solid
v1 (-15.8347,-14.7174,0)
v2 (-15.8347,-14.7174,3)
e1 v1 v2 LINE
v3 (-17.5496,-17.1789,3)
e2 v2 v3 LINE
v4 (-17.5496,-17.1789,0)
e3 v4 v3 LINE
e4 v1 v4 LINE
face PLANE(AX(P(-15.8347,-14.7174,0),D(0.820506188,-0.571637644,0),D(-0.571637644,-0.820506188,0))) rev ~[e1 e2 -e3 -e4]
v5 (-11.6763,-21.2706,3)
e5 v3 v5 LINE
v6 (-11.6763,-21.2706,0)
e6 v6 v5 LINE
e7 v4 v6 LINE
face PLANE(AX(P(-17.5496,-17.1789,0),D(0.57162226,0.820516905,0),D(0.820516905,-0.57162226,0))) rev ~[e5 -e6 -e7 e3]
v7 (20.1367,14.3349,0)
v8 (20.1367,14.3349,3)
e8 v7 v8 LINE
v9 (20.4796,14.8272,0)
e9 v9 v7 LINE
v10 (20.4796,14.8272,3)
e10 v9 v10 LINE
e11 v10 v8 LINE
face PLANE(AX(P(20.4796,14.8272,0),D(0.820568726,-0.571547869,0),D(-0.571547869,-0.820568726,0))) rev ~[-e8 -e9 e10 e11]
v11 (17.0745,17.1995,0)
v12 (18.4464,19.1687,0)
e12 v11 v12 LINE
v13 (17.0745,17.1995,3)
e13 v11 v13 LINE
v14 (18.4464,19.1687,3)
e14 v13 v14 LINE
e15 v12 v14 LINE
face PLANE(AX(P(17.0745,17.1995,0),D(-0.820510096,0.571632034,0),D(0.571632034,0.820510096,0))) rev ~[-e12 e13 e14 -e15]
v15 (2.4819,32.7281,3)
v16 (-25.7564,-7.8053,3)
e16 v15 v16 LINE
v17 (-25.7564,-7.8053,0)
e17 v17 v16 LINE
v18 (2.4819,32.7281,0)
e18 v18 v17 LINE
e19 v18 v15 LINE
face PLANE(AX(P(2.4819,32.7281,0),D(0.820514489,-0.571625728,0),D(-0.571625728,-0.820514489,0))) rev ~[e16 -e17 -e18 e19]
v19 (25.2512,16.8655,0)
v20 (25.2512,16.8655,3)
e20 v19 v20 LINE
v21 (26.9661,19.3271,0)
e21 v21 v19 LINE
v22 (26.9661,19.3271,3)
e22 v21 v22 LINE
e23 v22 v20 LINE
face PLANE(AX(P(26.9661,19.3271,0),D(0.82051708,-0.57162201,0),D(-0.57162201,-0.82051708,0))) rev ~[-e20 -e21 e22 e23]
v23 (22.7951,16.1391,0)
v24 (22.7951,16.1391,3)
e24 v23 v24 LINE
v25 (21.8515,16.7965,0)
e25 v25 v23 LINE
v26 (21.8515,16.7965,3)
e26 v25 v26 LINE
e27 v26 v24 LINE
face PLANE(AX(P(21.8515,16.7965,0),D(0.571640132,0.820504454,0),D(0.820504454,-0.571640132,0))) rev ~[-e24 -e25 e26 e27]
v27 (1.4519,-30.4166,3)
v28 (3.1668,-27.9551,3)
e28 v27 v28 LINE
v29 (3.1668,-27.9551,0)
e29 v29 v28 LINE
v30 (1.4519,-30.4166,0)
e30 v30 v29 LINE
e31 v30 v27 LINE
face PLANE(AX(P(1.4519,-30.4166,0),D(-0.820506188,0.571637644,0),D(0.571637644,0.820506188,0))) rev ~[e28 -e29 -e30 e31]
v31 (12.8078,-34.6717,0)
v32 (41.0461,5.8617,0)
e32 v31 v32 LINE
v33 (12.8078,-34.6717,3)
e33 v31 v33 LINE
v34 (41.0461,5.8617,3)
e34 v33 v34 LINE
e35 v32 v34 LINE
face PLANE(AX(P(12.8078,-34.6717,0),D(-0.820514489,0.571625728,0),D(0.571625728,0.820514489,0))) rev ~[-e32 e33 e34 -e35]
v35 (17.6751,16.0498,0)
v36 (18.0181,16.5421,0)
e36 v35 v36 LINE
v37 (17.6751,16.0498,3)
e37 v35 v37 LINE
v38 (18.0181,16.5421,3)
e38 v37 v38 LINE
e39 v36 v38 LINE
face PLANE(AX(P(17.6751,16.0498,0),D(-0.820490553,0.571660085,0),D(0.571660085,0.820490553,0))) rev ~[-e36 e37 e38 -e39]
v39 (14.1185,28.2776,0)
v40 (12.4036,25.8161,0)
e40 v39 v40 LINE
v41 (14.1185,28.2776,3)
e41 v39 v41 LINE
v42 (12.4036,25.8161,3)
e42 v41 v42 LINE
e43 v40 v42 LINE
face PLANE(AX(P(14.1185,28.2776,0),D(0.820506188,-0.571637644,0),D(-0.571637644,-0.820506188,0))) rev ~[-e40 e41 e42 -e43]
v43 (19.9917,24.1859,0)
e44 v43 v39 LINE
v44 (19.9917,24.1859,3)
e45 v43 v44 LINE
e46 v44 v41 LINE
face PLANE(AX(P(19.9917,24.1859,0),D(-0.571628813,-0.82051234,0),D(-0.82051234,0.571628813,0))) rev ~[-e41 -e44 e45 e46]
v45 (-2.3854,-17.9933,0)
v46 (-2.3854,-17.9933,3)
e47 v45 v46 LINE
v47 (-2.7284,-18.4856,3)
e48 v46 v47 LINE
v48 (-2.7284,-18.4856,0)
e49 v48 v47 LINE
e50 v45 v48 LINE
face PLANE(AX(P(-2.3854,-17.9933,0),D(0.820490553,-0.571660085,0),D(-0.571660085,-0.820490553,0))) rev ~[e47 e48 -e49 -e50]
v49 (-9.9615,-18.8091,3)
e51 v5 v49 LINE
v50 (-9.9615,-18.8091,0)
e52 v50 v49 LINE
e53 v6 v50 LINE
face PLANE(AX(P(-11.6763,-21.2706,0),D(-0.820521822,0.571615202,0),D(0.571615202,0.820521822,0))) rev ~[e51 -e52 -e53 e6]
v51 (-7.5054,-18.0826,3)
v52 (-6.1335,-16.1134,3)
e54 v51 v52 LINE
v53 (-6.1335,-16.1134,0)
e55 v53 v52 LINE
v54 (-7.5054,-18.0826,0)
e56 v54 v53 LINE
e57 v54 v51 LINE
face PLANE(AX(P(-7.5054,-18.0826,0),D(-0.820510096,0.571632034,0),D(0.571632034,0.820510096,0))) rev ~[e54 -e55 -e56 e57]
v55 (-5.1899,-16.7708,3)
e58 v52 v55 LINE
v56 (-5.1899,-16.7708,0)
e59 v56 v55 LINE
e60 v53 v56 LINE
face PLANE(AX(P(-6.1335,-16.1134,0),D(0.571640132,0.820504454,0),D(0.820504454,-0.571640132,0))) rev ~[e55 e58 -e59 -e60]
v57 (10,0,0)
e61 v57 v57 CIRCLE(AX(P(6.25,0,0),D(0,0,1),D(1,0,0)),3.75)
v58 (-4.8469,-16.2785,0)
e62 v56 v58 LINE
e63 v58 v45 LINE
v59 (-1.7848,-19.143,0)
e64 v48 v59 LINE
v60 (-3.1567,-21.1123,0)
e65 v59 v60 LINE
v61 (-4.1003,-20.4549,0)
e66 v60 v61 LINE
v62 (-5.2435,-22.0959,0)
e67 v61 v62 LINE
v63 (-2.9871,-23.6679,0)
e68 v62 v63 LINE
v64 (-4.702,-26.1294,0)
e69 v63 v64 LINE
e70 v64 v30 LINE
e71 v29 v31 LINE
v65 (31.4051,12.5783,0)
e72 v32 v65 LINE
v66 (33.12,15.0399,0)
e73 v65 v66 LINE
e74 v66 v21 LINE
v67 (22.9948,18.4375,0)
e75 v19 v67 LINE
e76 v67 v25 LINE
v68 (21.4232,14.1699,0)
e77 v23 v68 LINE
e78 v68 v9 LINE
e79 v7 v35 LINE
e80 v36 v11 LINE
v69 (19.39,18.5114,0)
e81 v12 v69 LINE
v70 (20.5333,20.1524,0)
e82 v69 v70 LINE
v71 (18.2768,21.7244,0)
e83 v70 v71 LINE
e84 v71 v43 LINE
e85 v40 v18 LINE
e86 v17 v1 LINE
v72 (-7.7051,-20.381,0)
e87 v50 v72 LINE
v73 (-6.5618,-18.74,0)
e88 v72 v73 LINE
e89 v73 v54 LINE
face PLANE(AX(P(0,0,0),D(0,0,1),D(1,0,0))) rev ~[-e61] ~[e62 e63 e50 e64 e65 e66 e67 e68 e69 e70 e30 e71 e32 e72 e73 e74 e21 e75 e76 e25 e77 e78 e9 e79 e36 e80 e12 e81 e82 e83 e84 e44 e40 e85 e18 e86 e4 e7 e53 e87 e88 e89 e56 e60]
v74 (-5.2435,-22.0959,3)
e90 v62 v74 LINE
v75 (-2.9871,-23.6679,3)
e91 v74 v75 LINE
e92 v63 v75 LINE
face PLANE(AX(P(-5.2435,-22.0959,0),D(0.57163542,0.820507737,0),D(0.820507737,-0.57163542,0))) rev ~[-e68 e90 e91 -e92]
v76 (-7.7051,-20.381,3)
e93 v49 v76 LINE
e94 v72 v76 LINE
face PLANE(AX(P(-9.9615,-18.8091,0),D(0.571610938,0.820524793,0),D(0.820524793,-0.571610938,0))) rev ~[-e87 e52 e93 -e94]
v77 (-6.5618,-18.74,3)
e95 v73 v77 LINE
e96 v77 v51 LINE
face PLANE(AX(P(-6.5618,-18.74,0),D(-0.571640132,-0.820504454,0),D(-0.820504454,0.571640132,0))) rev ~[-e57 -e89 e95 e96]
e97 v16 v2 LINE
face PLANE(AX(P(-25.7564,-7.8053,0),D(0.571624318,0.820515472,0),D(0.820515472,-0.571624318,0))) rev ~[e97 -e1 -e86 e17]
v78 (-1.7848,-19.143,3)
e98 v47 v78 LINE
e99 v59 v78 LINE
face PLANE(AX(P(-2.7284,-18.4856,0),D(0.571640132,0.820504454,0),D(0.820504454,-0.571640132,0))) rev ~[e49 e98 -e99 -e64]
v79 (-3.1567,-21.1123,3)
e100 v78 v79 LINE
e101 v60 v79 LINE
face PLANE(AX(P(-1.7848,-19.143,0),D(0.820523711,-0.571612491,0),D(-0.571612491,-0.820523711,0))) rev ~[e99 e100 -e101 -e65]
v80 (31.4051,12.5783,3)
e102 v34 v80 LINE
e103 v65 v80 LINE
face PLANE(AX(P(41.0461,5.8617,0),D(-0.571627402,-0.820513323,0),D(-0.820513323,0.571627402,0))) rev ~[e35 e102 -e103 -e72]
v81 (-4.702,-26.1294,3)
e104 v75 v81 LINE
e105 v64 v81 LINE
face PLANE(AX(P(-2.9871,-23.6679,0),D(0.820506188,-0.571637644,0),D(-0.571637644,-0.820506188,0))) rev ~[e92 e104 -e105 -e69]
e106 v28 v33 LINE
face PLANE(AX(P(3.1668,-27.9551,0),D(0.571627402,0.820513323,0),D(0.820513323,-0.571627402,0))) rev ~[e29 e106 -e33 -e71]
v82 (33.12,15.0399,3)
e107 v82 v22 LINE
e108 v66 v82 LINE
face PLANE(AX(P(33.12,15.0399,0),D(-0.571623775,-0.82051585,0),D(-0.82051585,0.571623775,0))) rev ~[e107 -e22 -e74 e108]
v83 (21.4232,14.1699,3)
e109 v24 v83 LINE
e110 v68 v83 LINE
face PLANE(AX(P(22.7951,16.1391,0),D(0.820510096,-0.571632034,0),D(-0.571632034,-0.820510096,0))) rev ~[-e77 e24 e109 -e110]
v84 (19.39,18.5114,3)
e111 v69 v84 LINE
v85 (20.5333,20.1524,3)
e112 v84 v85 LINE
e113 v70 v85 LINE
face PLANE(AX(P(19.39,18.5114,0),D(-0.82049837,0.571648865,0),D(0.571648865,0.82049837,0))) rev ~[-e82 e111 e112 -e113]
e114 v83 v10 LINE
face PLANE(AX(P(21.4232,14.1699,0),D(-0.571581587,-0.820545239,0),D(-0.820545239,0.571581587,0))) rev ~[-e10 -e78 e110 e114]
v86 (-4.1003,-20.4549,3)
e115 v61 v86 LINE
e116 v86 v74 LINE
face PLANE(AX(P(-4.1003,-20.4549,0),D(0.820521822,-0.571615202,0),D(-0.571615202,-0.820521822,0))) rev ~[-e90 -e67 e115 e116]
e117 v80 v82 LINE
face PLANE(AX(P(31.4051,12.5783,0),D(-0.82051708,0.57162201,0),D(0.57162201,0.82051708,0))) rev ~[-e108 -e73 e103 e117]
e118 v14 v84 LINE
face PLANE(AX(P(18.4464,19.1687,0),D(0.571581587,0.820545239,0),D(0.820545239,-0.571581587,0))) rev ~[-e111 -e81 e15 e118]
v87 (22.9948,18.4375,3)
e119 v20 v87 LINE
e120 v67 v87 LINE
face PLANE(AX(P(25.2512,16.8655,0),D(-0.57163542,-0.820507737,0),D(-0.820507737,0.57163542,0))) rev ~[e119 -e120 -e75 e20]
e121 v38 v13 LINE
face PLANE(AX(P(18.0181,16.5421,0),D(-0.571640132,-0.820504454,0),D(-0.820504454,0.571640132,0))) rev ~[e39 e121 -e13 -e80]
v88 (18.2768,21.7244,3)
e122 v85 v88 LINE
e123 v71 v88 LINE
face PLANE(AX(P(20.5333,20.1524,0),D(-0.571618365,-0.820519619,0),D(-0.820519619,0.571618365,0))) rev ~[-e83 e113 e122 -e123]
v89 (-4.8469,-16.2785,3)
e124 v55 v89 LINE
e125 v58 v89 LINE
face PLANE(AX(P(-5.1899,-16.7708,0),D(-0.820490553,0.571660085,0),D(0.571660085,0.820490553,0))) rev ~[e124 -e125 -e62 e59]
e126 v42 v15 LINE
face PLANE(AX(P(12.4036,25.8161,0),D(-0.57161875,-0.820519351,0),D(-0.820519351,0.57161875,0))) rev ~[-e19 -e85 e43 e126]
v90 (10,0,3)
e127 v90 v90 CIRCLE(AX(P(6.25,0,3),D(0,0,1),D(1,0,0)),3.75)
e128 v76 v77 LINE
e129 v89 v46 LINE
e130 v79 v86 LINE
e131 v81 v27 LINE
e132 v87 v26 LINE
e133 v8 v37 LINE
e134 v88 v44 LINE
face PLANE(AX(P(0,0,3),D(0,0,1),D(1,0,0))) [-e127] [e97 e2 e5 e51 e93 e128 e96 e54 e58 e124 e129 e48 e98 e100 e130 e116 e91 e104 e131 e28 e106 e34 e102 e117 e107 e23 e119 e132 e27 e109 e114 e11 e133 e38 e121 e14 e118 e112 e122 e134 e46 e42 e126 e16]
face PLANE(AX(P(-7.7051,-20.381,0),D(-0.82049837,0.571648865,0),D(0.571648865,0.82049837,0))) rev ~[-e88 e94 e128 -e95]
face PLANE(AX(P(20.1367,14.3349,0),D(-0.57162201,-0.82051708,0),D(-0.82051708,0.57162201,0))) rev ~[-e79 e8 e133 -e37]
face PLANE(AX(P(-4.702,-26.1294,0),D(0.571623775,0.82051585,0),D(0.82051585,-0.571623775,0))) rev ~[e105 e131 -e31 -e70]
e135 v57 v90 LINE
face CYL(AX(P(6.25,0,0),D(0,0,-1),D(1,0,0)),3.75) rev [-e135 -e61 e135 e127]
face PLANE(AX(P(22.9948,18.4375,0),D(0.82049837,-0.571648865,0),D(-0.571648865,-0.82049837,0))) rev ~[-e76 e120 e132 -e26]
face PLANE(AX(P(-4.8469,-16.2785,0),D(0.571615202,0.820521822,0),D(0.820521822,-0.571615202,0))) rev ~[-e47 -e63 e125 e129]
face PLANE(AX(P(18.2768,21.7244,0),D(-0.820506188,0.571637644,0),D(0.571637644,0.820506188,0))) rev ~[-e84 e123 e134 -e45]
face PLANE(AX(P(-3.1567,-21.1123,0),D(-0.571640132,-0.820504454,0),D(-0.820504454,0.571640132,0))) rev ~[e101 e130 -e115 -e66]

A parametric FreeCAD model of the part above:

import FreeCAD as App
import Part
import Sketcher

V = App.Vector


def add_polygon(sketch, points):
    """Adds a closed chain of lines whose ends are joined by coincident constraints."""
    first, n = sketch.GeometryCount, len(points)
    for a, b in zip(points, points[1:] + points[:1]):
        sketch.addGeometry(Part.LineSegment(App.Vector(*a, 0), App.Vector(*b, 0)), False)
    for i in range(n):
        sketch.addConstraint(Sketcher.Constraint("Coincident", first + i, 2, first + (i + 1) % n, 1))

doc = App.newDocument("Part")
params = doc.addObject("Spreadsheet::Sheet", "Params")
for row, (alias, value) in enumerate([
    ("sketch1_diameter", "7.5 mm"),
    ("sketch1_length", "3 mm"),
    ("sketch1_length2", "3 mm"),
    ("sketch1_length3", "3 mm"),
    ("sketch1_length4", "3 mm"),
    ("pad1_length", "3 mm"),
], start=1):
    params.set(f"A{row}", alias)
    params.set(f"B{row}", "=" + value)
    params.setAlias(f"B{row}", alias)

body = doc.addObject("PartDesign::Body", "Body")

# Sketch on XY plane
sketch1 = body.newObject("Sketcher::SketchObject", "Sketch")
sketch1.AttachmentSupport = (doc.getObject("XY_Plane"), [""])
sketch1.MapMode = "FlatFace"
add_polygon(sketch1, [(-2.9871, -23.6679), (-4.702, -26.1294), (1.4519, -30.4166), (3.1668, -27.9551), (12.8078, -34.6717), (41.0461, 5.8617), (31.4051, 12.5783), (33.12, 15.0399), (26.9661, 19.3271), (25.2512, 16.8655), (22.9948, 18.4375), (21.8515, 16.7965), (22.7951, 16.1391), (21.4232, 14.1699), (20.4796, 14.8272), (20.1367, 14.3349), (17.6751, 16.0498), (18.0181, 16.5421), (17.0745, 17.1995), (18.4464, 19.1687), (19.39, 18.5114), (20.5333, 20.1524), (18.2768, 21.7244), (19.9917, 24.1859), (14.1185, 28.2776), (12.4036, 25.8161), (2.4819, 32.7281), (-25.7564, -7.8053), (-15.8347, -14.7174), (-17.5496, -17.1789), (-11.6763, -21.2706), (-9.9615, -18.8091), (-7.7051, -20.381), (-6.5618, -18.74), (-7.5054, -18.0826), (-6.1335, -16.1134), (-5.1899, -16.7708), (-4.8469, -16.2785), (-2.3854, -17.9933), (-2.7284, -18.4856), (-1.7848, -19.143), (-3.1567, -21.1123), (-4.1003, -20.4549), (-5.2435, -22.0959)])  # lines 0-43
sketch1.addGeometry(Part.Circle(V(6.25, 0, 0), V(0, 0, 1), 3.75), False)  # 44
sketch1.addConstraint(Sketcher.Constraint("PointOnObject", 44, 3, -1))
sketch1.addConstraint(Sketcher.Constraint("Diameter", 44, 7.5))
sketch1.addConstraint(Sketcher.Constraint("Distance", 0, 3.0))
sketch1.addConstraint(Sketcher.Constraint("Distance", 2, 3.0))
sketch1.addConstraint(Sketcher.Constraint("Distance", 6, 3.0))
sketch1.addConstraint(Sketcher.Constraint("Distance", 8, 3.0))
sketch1.addConstraint(Sketcher.Constraint("Distance", 10, 2.0))
sketch1.addConstraint(Sketcher.Constraint("Distance", 15, 3.0))
sketch1.addConstraint(Sketcher.Constraint("Distance", 20, 2.0))
sketch1.addConstraint(Sketcher.Constraint("Distance", 22, 3.0))
sketch1.addConstraint(Sketcher.Constraint("Distance", 24, 3.0))
sketch1.addConstraint(Sketcher.Constraint("Distance", 28, 3.0))
sketch1.addConstraint(Sketcher.Constraint("Distance", 30, 3.0))
sketch1.addConstraint(Sketcher.Constraint("Distance", 32, 2.0))
sketch1.addConstraint(Sketcher.Constraint("Distance", 37, 3.0))
sketch1.addConstraint(Sketcher.Constraint("Distance", 42, 2.0))
sketch1.addConstraint(Sketcher.Constraint("Distance", 1, 7.5))
sketch1.addConstraint(Sketcher.Constraint("Distance", 4, 49.4))
sketch1.addConstraint(Sketcher.Constraint("Distance", 7, 7.5))
sketch1.addConstraint(Sketcher.Constraint("Distance", 12, 2.4))
sketch1.addConstraint(Sketcher.Constraint("Distance", 14, 0.6))
sketch1.addConstraint(Sketcher.Constraint("Distance", 16, 0.6))
sketch1.addConstraint(Sketcher.Constraint("Distance", 18, 2.4))
sketch1.addConstraint(Sketcher.Constraint("Distance", 26, 49.4))
sketch1.addConstraint(Sketcher.Constraint("Distance", 34, 2.4))
sketch1.addConstraint(Sketcher.Constraint("Distance", 36, 0.6))
sketch1.addConstraint(Sketcher.Constraint("Distance", 38, 0.6))
sketch1.addConstraint(Sketcher.Constraint("Distance", 40, 2.4))
sketch1.addConstraint(Sketcher.Constraint("Distance", 3, 11.75))
sketch1.addConstraint(Sketcher.Constraint("Distance", 5, 11.75))
sketch1.addConstraint(Sketcher.Constraint("Distance", 9, 2.75))
sketch1.addConstraint(Sketcher.Constraint("Distance", 11, 1.15))
sketch1.addConstraint(Sketcher.Constraint("Distance", 13, 1.15))
sketch1.addConstraint(Sketcher.Constraint("Distance", 17, 1.15))
sketch1.addConstraint(Sketcher.Constraint("Distance", 19, 1.15))
sketch1.addConstraint(Sketcher.Constraint("Distance", 21, 2.75))
sketch1.addConstraint(Sketcher.Constraint("Distance", 31, 2.75))
sketch1.addConstraint(Sketcher.Constraint("Distance", 33, 1.15))
sketch1.addConstraint(Sketcher.Constraint("Distance", 35, 1.15))
sketch1.addConstraint(Sketcher.Constraint("Distance", 39, 1.15))
sketch1.addConstraint(Sketcher.Constraint("Distance", 41, 1.15))
sketch1.addConstraint(Sketcher.Constraint("Distance", 43, 2.75))
sketch1.addConstraint(Sketcher.Constraint("DistanceX", -1, 1, 44, 3, 6.25))
sketch1.addConstraint(Sketcher.Constraint("DistanceX", -1, 1, 6, 2, 33.12))
sketch1.addConstraint(Sketcher.Constraint("DistanceY", -1, 1, 6, 2, 15.04))
sketch1.addConstraint(Sketcher.Constraint("DistanceY", -1, 1, 12, 2, 14.17))
sketch1.addConstraint(Sketcher.Constraint("DistanceX", -1, 1, 19, 2, 19.39))
sketch1.addConstraint(Sketcher.Constraint("DistanceY", 32, 2, -1, 1, 18.74))
sketch1.addConstraint(Sketcher.Constraint("DistanceX", 35, 2, -1, 1, 5.19))
sketch1.addConstraint(Sketcher.Constraint("DistanceY", 3, 2, 5, 2, 47.25))
sketch1.addConstraint(Sketcher.Constraint("DistanceX", 7, 2, 4, 2, 14.08))
sketch1.addConstraint(Sketcher.Constraint("DistanceX", 11, 2, 5, 2, 8.61))
sketch1.addConstraint(Sketcher.Constraint("DistanceY", 12, 2, 15, 2, 1.88))
sketch1.addConstraint(Sketcher.Constraint("DistanceX", 15, 2, 11, 2, 5.12))
sketch1.addConstraint(Sketcher.Constraint("DistanceY", 37, 2, 34, 2, 1.88))
sketch1.addConstraint(Sketcher.Constraint("DistanceX", 33, 2, 37, 2, 5.12))
sketch1.addConstraint(Sketcher.Constraint("Distance", 23, 7.158))
sketch1.addConstraint(Sketcher.Constraint("Distance", 25, 12.092))
sketch1.addConstraint(Sketcher.Constraint("Distance", 27, 12.092))
sketch1.addConstraint(Sketcher.Constraint("Distance", 29, 7.158))
sketch1.addConstraint(Sketcher.Constraint("DistanceX", 0, 2, -1, 1, 4.702))
sketch1.addConstraint(Sketcher.Constraint("DistanceX", -1, 1, 1, 2, 1.452))
sketch1.addConstraint(Sketcher.Constraint("DistanceY", 2, 2, -1, 1, 27.955))
sketch1.addConstraint(Sketcher.Constraint("DistanceX", -1, 1, 4, 2, 41.046))
sketch1.addConstraint(Sketcher.Constraint("DistanceX", -1, 1, 5, 2, 31.405))
sketch1.addConstraint(Sketcher.Constraint("DistanceY", -1, 1, 11, 2, 16.139))
sketch1.addConstraint(Sketcher.Constraint("DistanceY", -1, 1, 14, 2, 14.335))
sketch1.addConstraint(Sketcher.Constraint("DistanceX", -1, 1, 16, 2, 18.018))
sketch1.addConstraint(Sketcher.Constraint("DistanceY", -1, 1, 22, 2, 24.186))
sketch1.addConstraint(Sketcher.Constraint("DistanceY", -1, 1, 24, 2, 25.816))
sketch1.addConstraint(Sketcher.Constraint("DistanceX", -1, 1, 25, 2, 2.482))
sketch1.addConstraint(Sketcher.Constraint("DistanceY", -1, 1, 25, 2, 32.728))
sketch1.addConstraint(Sketcher.Constraint("DistanceY", 28, 2, -1, 1, 17.179))
sketch1.addConstraint(Sketcher.Constraint("DistanceY", 30, 2, -1, 1, 18.809))
sketch1.addConstraint(Sketcher.Constraint("DistanceX", 31, 2, -1, 1, 7.705))
sketch1.addConstraint(Sketcher.Constraint("DistanceY", 31, 2, -1, 1, 20.381))
sketch1.addConstraint(Sketcher.Constraint("DistanceX", 36, 2, -1, 1, 4.847))
sketch1.addConstraint(Sketcher.Constraint("DistanceY", 39, 2, -1, 1, 19.143))
sketch1.addConstraint(Sketcher.Constraint("DistanceY", 41, 2, -1, 1, 20.455))
sketch1.addConstraint(Sketcher.Constraint("DistanceY", 42, 2, -1, 1, 22.096))
sketch1.addConstraint(Sketcher.Constraint("DistanceX", 43, 2, -1, 1, 2.987))
sketch1.addConstraint(Sketcher.Constraint("DistanceX", 8, 2, 7, 2, 1.715))
sketch1.addConstraint(Sketcher.Constraint("DistanceY", 8, 2, 9, 2, 1.572))
sketch1.addConstraint(Sketcher.Constraint("DistanceX", 17, 2, 13, 2, 3.405))
sketch1.addConstraint(Sketcher.Constraint("DistanceX", 17, 2, 18, 2, 1.372))
sketch1.addConstraint(Sketcher.Constraint("DistanceY", 19, 2, 20, 2, 1.641))
sketch1.addConstraint(Sketcher.Constraint("DistanceY", 20, 2, 21, 2, 1.572))
sketch1.addConstraint(Sketcher.Constraint("DistanceY", 0, 2, 26, 2, 18.324))
sketch1.addConstraint(Sketcher.Constraint("DistanceY", 27, 2, 26, 2, 6.912))
sketch1.addConstraint(Sketcher.Constraint("DistanceX", 30, 2, 33, 2, 2.456))
sketch1.addConstraint(Sketcher.Constraint("DistanceX", 38, 2, 37, 2, 0.343))
sketch1.setExpression("Constraints[45]", "Params.sketch1_diameter")
sketch1.setExpression("Constraints[46]", "Params.sketch1_length")
sketch1.setExpression("Constraints[47]", "Params.sketch1_length2")
sketch1.setExpression("Constraints[48]", "Params.sketch1_length3")
sketch1.setExpression("Constraints[49]", "Params.sketch1_length4")
pad1 = body.newObject("PartDesign::Pad", "Pad")
pad1.Profile = sketch1
pad1.setExpression("Length", "Params.pad1_length")

doc.recompute()
